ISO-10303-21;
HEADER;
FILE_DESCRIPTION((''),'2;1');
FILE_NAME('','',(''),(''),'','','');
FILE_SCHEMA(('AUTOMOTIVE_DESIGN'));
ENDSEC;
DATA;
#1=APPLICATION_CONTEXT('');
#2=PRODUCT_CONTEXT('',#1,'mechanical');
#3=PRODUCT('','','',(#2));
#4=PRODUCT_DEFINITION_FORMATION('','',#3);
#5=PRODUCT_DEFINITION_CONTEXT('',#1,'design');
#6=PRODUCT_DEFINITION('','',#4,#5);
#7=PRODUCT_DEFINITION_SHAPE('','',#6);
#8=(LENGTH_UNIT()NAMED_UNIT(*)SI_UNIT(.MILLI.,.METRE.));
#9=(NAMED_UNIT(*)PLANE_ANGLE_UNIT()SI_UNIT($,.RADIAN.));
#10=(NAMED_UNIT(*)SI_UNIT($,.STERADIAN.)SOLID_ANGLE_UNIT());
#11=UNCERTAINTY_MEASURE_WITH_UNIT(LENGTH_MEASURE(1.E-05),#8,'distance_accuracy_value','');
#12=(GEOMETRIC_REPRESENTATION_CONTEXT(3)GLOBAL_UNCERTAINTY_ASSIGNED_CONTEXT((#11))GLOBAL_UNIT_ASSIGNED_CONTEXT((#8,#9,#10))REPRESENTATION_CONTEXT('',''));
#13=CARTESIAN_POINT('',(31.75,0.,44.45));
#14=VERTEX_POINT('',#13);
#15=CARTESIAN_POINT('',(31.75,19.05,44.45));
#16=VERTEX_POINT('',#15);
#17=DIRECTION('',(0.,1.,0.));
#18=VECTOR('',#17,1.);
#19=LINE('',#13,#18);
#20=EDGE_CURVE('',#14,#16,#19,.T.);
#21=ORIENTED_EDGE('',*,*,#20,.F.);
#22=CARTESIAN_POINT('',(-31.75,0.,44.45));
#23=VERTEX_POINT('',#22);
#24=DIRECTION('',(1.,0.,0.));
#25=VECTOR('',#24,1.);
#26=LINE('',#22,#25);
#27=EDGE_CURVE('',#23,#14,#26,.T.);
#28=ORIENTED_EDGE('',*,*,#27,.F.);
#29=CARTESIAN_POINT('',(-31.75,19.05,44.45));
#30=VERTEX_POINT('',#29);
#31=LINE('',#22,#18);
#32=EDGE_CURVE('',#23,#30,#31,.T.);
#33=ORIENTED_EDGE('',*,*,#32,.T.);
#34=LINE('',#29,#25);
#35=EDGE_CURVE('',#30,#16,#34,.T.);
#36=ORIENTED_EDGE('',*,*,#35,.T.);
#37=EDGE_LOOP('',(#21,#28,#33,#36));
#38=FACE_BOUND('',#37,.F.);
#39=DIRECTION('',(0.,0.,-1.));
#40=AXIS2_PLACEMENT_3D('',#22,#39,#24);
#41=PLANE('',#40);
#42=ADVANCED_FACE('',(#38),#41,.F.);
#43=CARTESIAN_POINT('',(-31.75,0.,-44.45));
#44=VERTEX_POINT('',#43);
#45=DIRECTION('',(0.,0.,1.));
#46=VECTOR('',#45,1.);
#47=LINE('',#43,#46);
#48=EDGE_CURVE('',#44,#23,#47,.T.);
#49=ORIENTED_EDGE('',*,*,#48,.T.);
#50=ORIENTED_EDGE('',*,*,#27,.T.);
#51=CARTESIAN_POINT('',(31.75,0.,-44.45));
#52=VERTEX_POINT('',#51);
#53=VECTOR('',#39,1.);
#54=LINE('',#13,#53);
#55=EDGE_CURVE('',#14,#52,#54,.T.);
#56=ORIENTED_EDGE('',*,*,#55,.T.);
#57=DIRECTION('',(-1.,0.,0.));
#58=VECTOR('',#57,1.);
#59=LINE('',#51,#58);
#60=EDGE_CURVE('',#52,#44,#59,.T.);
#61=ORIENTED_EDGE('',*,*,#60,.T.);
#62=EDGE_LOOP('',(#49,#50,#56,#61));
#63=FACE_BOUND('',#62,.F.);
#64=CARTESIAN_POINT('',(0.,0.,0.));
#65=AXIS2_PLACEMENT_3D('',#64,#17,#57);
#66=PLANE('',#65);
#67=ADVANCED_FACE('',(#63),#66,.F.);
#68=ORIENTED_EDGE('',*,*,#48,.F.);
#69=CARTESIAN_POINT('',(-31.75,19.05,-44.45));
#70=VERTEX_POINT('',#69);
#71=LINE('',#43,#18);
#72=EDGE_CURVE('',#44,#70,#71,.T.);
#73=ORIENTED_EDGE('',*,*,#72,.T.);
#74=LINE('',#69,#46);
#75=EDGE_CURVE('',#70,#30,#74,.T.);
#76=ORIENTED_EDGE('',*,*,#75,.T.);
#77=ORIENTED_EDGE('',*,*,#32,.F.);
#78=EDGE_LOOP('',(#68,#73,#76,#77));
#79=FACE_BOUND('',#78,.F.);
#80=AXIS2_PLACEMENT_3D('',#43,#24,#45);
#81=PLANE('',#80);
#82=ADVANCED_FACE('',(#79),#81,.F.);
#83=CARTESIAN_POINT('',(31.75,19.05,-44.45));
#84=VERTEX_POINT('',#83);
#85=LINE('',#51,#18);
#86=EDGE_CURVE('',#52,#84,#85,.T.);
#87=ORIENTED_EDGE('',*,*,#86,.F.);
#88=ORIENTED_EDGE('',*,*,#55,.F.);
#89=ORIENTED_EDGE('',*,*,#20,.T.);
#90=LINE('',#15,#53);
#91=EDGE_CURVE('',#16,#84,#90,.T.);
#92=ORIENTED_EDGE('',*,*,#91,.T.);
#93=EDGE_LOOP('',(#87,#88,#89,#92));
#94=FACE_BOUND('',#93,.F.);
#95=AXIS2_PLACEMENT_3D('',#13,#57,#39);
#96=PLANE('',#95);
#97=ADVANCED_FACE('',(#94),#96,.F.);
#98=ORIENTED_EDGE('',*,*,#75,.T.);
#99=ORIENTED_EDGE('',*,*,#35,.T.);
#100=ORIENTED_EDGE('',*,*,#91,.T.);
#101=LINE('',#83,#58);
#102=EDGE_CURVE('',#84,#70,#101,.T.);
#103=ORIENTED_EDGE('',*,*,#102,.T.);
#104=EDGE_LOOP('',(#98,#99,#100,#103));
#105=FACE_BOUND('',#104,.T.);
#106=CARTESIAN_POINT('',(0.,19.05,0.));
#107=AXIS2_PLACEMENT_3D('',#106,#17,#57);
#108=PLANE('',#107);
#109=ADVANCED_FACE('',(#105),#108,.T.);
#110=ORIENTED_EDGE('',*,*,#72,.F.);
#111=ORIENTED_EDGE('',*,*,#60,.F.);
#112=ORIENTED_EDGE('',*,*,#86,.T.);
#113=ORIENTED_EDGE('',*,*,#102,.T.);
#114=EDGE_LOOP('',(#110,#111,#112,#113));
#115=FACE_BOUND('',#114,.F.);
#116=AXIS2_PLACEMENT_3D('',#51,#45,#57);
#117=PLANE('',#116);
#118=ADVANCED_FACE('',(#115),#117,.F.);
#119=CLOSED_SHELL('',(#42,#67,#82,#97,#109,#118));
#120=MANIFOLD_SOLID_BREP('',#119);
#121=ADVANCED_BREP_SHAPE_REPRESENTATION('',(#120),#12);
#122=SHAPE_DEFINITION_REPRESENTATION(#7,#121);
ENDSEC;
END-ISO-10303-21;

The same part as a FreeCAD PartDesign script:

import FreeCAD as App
import Part
import Sketcher
Q = App.Units.Quantity

doc = App.newDocument("Part")
body = doc.addObject("PartDesign::Body", "Body")

# Sketch on XZ plane
sketch1 = body.newObject("Sketcher::SketchObject", "Sketch")
sketch1.AttachmentSupport = (doc.getObject("XZ_Plane"), [""])
sketch1.MapMode = "FlatFace"
sketch1.addGeometry(Part.LineSegment(App.Vector(-31.75, -44.45, 0), App.Vector(-31.75, 44.45, 0)), False)
sketch1.addGeometry(Part.LineSegment(App.Vector(-31.75, 44.45, 0), App.Vector(31.75, 44.45, 0)), False)
sketch1.addGeometry(Part.LineSegment(App.Vector(31.75, 44.45, 0), App.Vector(31.75, -44.45, 0)), False)
sketch1.addGeometry(Part.LineSegment(App.Vector(31.75, -44.45, 0), App.Vector(-31.75, -44.45, 0)), False)
sketch1.addConstraint(Sketcher.Constraint("Coincident", 0, 2, 1, 1))
sketch1.addConstraint(Sketcher.Constraint("Coincident", 1, 2, 2, 1))
sketch1.addConstraint(Sketcher.Constraint("Coincident", 2, 2, 3, 1))
sketch1.addConstraint(Sketcher.Constraint("Coincident", 3, 2, 0, 1))
sketch1.addConstraint(Sketcher.Constraint("Vertical", 0))
sketch1.addConstraint(Sketcher.Constraint("Horizontal", 1))
sketch1.addConstraint(Sketcher.Constraint("Vertical", 2))
sketch1.addConstraint(Sketcher.Constraint("Horizontal", 3))
sketch1.addConstraint(Sketcher.Constraint("Symmetric", 0, 2, 2, 2, -1, 1))
sketch1.addConstraint(Sketcher.Constraint("DistanceX", 1, 1, 1, 2, Q("2.5 in")))
sketch1.addConstraint(Sketcher.Constraint("DistanceY", 0, 1, 0, 2, Q("3.5 in")))
pad1 = body.newObject("PartDesign::Pad", "Pad")
pad1.Profile = sketch1
pad1.Length = Q("0.75 in")
pad1.Reversed = True

doc.recompute()
